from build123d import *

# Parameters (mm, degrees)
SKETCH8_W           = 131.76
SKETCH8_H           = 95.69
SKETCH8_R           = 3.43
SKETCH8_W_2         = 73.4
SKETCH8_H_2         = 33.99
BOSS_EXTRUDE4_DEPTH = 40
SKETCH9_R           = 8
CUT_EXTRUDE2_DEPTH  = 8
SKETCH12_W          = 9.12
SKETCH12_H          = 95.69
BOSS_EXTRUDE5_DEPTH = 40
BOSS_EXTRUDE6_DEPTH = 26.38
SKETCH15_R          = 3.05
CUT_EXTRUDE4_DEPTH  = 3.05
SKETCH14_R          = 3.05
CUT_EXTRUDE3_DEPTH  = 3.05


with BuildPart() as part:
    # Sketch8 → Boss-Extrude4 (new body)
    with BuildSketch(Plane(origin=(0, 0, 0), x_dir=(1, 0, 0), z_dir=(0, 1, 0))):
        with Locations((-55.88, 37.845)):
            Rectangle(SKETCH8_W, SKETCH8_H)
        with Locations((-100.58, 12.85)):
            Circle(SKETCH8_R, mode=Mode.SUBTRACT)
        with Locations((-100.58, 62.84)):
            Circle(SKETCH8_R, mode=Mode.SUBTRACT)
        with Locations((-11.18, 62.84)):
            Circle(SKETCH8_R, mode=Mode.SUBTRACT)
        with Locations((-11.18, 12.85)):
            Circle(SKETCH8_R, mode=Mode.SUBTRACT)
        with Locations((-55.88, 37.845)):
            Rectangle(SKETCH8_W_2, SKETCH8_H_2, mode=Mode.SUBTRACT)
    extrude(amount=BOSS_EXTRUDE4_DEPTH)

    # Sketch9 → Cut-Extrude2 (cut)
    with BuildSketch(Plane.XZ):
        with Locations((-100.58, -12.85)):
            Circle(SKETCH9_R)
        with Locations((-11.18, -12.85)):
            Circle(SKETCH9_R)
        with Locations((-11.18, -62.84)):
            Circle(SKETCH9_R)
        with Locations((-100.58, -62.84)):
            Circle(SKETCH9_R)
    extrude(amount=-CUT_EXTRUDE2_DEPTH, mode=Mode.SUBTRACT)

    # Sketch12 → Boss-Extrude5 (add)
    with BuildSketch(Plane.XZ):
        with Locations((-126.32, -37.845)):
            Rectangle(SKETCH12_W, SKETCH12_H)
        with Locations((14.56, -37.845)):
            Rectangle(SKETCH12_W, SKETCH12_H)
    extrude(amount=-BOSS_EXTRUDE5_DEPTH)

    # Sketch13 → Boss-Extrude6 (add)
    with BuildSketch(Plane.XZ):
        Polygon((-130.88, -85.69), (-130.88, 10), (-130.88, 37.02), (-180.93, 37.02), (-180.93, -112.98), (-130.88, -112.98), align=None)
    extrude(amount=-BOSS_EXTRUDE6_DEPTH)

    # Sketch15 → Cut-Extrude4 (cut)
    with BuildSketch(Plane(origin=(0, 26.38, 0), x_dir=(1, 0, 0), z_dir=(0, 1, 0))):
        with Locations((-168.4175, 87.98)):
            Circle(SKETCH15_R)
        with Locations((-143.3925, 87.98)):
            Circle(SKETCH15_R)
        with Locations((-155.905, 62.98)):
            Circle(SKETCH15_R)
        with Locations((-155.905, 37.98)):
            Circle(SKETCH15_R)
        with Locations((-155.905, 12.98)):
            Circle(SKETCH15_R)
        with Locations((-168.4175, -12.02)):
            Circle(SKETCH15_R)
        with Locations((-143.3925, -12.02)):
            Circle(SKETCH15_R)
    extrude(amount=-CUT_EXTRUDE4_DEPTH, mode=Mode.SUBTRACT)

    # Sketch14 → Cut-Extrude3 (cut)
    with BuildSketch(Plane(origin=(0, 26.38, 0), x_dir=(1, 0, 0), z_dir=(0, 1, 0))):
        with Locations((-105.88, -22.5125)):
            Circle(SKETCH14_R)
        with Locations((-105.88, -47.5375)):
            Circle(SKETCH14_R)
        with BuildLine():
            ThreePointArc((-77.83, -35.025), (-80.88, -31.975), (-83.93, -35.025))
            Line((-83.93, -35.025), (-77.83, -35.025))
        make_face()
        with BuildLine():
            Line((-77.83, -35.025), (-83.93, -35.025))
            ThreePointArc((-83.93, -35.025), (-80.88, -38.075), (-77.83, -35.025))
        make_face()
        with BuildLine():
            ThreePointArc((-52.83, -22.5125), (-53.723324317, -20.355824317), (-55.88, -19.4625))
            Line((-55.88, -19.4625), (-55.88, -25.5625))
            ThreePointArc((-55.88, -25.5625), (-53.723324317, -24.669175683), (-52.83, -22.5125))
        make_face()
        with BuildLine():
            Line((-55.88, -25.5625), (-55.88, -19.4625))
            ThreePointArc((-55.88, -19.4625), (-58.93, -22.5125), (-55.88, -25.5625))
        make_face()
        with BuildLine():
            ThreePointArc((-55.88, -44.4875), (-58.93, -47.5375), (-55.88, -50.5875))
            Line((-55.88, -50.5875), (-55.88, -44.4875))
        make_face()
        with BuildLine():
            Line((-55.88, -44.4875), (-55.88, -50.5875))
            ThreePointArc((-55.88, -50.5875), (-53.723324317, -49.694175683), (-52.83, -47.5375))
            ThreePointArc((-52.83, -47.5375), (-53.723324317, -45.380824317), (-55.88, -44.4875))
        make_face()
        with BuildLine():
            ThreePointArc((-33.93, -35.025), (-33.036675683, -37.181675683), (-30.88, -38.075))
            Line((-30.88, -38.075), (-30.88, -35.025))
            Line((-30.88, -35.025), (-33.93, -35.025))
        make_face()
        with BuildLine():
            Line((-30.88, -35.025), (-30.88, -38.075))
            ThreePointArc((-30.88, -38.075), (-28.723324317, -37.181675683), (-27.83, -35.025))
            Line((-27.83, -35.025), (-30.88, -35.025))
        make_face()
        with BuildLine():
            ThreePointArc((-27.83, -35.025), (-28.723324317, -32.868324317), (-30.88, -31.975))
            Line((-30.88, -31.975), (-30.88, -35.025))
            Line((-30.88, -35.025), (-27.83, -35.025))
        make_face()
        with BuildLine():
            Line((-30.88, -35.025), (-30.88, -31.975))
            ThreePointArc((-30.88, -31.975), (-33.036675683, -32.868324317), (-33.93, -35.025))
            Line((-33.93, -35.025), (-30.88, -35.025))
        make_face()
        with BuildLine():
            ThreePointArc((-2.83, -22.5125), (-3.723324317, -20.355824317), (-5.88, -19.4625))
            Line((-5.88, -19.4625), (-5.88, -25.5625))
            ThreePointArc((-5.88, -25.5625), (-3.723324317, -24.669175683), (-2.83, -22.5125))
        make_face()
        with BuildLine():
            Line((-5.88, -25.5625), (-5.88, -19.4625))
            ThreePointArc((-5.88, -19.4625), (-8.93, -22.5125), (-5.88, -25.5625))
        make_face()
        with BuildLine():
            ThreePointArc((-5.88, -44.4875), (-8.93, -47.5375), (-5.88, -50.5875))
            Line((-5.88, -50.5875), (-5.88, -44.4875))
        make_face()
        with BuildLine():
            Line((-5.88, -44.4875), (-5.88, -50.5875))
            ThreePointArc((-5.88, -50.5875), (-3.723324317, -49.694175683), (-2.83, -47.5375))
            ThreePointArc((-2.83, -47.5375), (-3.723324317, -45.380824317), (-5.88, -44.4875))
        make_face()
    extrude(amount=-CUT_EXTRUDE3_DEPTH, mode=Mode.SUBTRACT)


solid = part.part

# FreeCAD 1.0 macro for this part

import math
import FreeCAD as App
import Part
import Sketcher
Q = App.Units.Quantity


def add_polygon(sketch, points):
    """Adds a closed chain of lines whose ends are joined by coincident constraints."""
    first, n = sketch.GeometryCount, len(points)
    for a, b in zip(points, points[1:] + points[:1]):
        sketch.addGeometry(Part.LineSegment(App.Vector(*a, 0), App.Vector(*b, 0)), False)
    for i in range(n):
        sketch.addConstraint(Sketcher.Constraint("Coincident", first + i, 2, first + (i + 1) % n, 1))

doc = App.newDocument("Part")
body = doc.addObject("PartDesign::Body", "Body")

# Sketch on XZ plane
sketch1 = doc.addObject("Sketcher::SketchObject", "Sketch")
body.addObject(sketch1)
sketch1.AttachmentSupport = (doc.XZ_Plane, [""])
sketch1.MapMode = "FlatFace"
add_polygon(sketch1, [(-121.76, -85.69), (-121.76, 10), (10, 10), (10, -85.69)])  # lines 0-3
sketch1.addGeometry(Part.Circle(App.Vector(-100.58, -12.85, 0), App.Vector(0, 0, 1), 3.43), False)  # 4
sketch1.addGeometry(Part.Circle(App.Vector(-11.18, -12.85, 0), App.Vector(0, 0, 1), 3.43), False)  # 5
add_polygon(sketch1, [(-19.18, -20.85), (-92.58, -20.85), (-92.58, -54.84), (-19.18, -54.84)])  # lines 6-9
sketch1.addGeometry(Part.Circle(App.Vector(-100.58, -62.84, 0), App.Vector(0, 0, 1), 3.43), False)  # 10
sketch1.addGeometry(Part.Circle(App.Vector(-11.18, -62.84, 0), App.Vector(0, 0, 1), 3.43), False)  # 11
sketch1.addConstraint([
    Sketcher.Constraint("Vertical", 0),
    Sketcher.Constraint("Horizontal", 1),
    Sketcher.Constraint("Vertical", 2),
    Sketcher.Constraint("Horizontal", 3),
    Sketcher.Constraint("Horizontal", 6),
    Sketcher.Constraint("Vertical", 7),
    Sketcher.Constraint("Horizontal", 8),
    Sketcher.Constraint("Vertical", 9),
    Sketcher.Constraint("Equal", 4, 5),
    Sketcher.Constraint("Equal", 5, 10),
    Sketcher.Constraint("Equal", 10, 11),
    Sketcher.Constraint("Horizontal", 4, 3, 5, 3),
    Sketcher.Constraint("Horizontal", 10, 3, 11, 3),
    Sketcher.Constraint("Vertical", 4, 3, 10, 3),
    Sketcher.Constraint("Vertical", 5, 3, 11, 3),
    Sketcher.Constraint("Diameter", 4, Q("6.86 mm")),
    Sketcher.Constraint("DistanceX", 6, 2, 6, 1, Q("73.4 mm")),
    Sketcher.Constraint("DistanceY", -1, 1, 0, 2, Q("10 mm")),
    Sketcher.Constraint("DistanceX", -1, 1, 1, 2, Q("10 mm")),
    Sketcher.Constraint("DistanceX", 4, 3, 6, 2, Q("8 mm")),
    Sketcher.Constraint("DistanceY", 6, 2, 4, 3, Q("8 mm")),
    Sketcher.Constraint("DistanceY", 10, 3, 7, 2, Q("8 mm")),
    Sketcher.Constraint("DistanceX", 8, 2, 11, 3, Q("8 mm")),
    Sketcher.Constraint("DistanceX", 1, 1, 1, 2, Q("131.76 mm")),
    Sketcher.Constraint("DistanceY", 0, 1, 0, 2, Q("95.69 mm")),
    Sketcher.Constraint("DistanceY", 7, 2, 7, 1, Q("33.99 mm")),
    Sketcher.Constraint("DistanceX", 4, 3, -1, 1, Q("100.58 mm")),
    Sketcher.Constraint("DistanceY", 4, 3, -1, 1, Q("12.85 mm")),
])
pad1 = doc.addObject("PartDesign::Pad", "Pad")
body.addObject(pad1)
pad1.Profile = sketch1
pad1.Length = 40
pad1.Reversed = True

# Sketch on XZ plane
sketch2 = doc.addObject("Sketcher::SketchObject", "Sketch001")
body.addObject(sketch2)
sketch2.AttachmentSupport = (doc.XZ_Plane, [""])
sketch2.MapMode = "FlatFace"
sketch2.addGeometry([
    Part.Circle(App.Vector(-100.58, -12.85, 0), App.Vector(0, 0, 1), 8),
    Part.Circle(App.Vector(-11.18, -12.85, 0), App.Vector(0, 0, 1), 8),
    Part.Circle(App.Vector(-11.18, -62.84, 0), App.Vector(0, 0, 1), 8),
    Part.Circle(App.Vector(-100.58, -62.84, 0), App.Vector(0, 0, 1), 8),
], False)
sketch2.addConstraint([
    Sketcher.Constraint("Equal", 0, 1),
    Sketcher.Constraint("Equal", 1, 2),
    Sketcher.Constraint("Equal", 2, 3),
    Sketcher.Constraint("Horizontal", 0, 3, 1, 3),
    Sketcher.Constraint("Horizontal", 2, 3, 3, 3),
    Sketcher.Constraint("Vertical", 1, 3, 2, 3),
    Sketcher.Constraint("Vertical", 0, 3, 3, 3),
    Sketcher.Constraint("Diameter", 0, Q("16 mm")),
    Sketcher.Constraint("DistanceX", 0, 3, 1, 3, Q("89.4 mm")),
    Sketcher.Constraint("DistanceX", 0, 3, -1, 1, Q("100.58 mm")),
    Sketcher.Constraint("DistanceY", 0, 3, -1, 1, Q("12.85 mm")),
    Sketcher.Constraint("DistanceY", 2, 3, -1, 1, Q("62.84 mm")),
])
pocket1 = doc.addObject("PartDesign::Pocket", "Pocket")
body.addObject(pocket1)
pocket1.Profile = sketch2
pocket1.Length = 8

# Sketch on XZ plane
sketch3 = doc.addObject("Sketcher::SketchObject", "Sketch002")
body.addObject(sketch3)
sketch3.AttachmentSupport = (doc.XZ_Plane, [""])
sketch3.MapMode = "FlatFace"
add_polygon(sketch3, [(-130.88, 10), (-130.88, -85.69), (-121.76, -85.69), (-121.76, 10)])  # lines 0-3
add_polygon(sketch3, [(10, 10), (10, -85.69), (19.12, -85.69), (19.12, 10)])  # lines 4-7
sketch3.addConstraint([
    Sketcher.Constraint("Vertical", 0),
    Sketcher.Constraint("Horizontal", 1),
    Sketcher.Constraint("Vertical", 2),
    Sketcher.Constraint("Horizontal", 3),
    Sketcher.Constraint("Vertical", 4),
    Sketcher.Constraint("Horizontal", 5),
    Sketcher.Constraint("Vertical", 6),
    Sketcher.Constraint("Horizontal", 7),
    Sketcher.Constraint("Horizontal", 1, 2, 4, 2),
    Sketcher.Constraint("Horizontal", 3, 2, 6, 2),
    Sketcher.Constraint("Equal", 3, 5),
    Sketcher.Constraint("DistanceY", -1, 1, 2, 2, Q("10 mm")),
    Sketcher.Constraint("DistanceX", -1, 1, 4, 2, Q("10 mm")),
    Sketcher.Constraint("DistanceX", 0, 2, 5, 2, Q("150 mm")),
    Sketcher.Constraint("DistanceX", 1, 1, 1, 2, Q("9.12 mm")),
    Sketcher.Constraint("DistanceY", 0, 2, 0, 1, Q("95.69 mm")),
])
pad2 = doc.addObject("PartDesign::Pad", "Pad001")
body.addObject(pad2)
pad2.Profile = sketch3
pad2.Length = 40
pad2.Reversed = True

# Sketch on XZ plane
sketch4 = doc.addObject("Sketcher::SketchObject", "Sketch003")
body.addObject(sketch4)
sketch4.AttachmentSupport = (doc.XZ_Plane, [""])
sketch4.MapMode = "FlatFace"
add_polygon(sketch4, [(-130.88, 37.02), (-180.93, 37.02), (-180.93, -112.98), (-130.88, -112.98)])  # lines 0-3
sketch4.addConstraint([
    Sketcher.Constraint("Horizontal", 0),
    Sketcher.Constraint("Vertical", 1),
    Sketcher.Constraint("Horizontal", 2),
    Sketcher.Constraint("Vertical", 3),
    Sketcher.Constraint("DistanceY", 1, 2, 1, 1, Q("150 mm")),
    Sketcher.Constraint("DistanceX", 0, 2, 0, 1, Q("50.05 mm")),
    Sketcher.Constraint("DistanceX", 0, 2, -1, 1, Q("180.93 mm")),
    Sketcher.Constraint("DistanceY", -1, 1, 0, 2, Q("37.02 mm")),
])
pad3 = doc.addObject("PartDesign::Pad", "Pad002")
body.addObject(pad3)
pad3.Profile = sketch4
pad3.Length = 26.38
pad3.Reversed = True

# Sketch on XZ plane
sketch5 = doc.addObject("Sketcher::SketchObject", "Sketch004")
body.addObject(sketch5)
sketch5.AttachmentSupport = (doc.XZ_Plane, [""])
sketch5.MapMode = "FlatFace"
sketch5.AttachmentOffset = App.Placement(App.Vector(0, 0, -26.38), App.Rotation())
sketch5.addGeometry([
    Part.Circle(App.Vector(-168.4175, -87.98, 0), App.Vector(0, 0, 1), 3.05),  # 0
    Part.Circle(App.Vector(-143.3925, -87.98, 0), App.Vector(0, 0, 1), 3.05),  # 1
    Part.Circle(App.Vector(-155.905, -62.98, 0), App.Vector(0, 0, 1), 3.05),  # 2
    Part.Circle(App.Vector(-155.905, -37.98, 0), App.Vector(0, 0, 1), 3.05),  # 3
    Part.Circle(App.Vector(-155.905, -12.98, 0), App.Vector(0, 0, 1), 3.05),  # 4
    Part.Circle(App.Vector(-168.4175, 12.02, 0), App.Vector(0, 0, 1), 3.05),  # 5
    Part.Circle(App.Vector(-143.3925, 12.02, 0), App.Vector(0, 0, 1), 3.05),  # 6
], False)
sketch5.addConstraint([
    Sketcher.Constraint("Equal", 0, 1),
    Sketcher.Constraint("Equal", 1, 2),
    Sketcher.Constraint("Equal", 2, 3),
    Sketcher.Constraint("Equal", 3, 4),
    Sketcher.Constraint("Equal", 4, 5),
    Sketcher.Constraint("Equal", 5, 6),
    Sketcher.Constraint("Horizontal", 0, 3, 1, 3),
    Sketcher.Constraint("Horizontal", 5, 3, 6, 3),
    Sketcher.Constraint("Vertical", 2, 3, 3, 3),
    Sketcher.Constraint("Vertical", 3, 3, 4, 3),
    Sketcher.Constraint("Vertical", 0, 3, 5, 3),
    Sketcher.Constraint("Vertical", 1, 3, 6, 3),
    Sketcher.Constraint("Diameter", 0, Q("6.1 mm")),
    Sketcher.Constraint("DistanceY", 0, 3, 2, 3, Q("25 mm")),
    Sketcher.Constraint("DistanceY", 2, 3, 3, 3, Q("25 mm")),
    Sketcher.Constraint("DistanceY", 3, 3, 4, 3, Q("25 mm")),
    Sketcher.Constraint("DistanceY", 4, 3, 5, 3, Q("25 mm")),
    Sketcher.Constraint("DistanceY", 0, 3, -1, 1, Q("87.98 mm")),
    Sketcher.Constraint("DistanceX", 2, 3, -1, 1, Q("155.905 mm")),
    Sketcher.Constraint("DistanceX", 0, 3, 1, 3, Q("25.025 mm")),
    Sketcher.Constraint("DistanceX", 0, 3, -1, 1, Q("168.4175 mm")),
])
pocket2 = doc.addObject("PartDesign::Pocket", "Pocket001")
body.addObject(pocket2)
pocket2.Profile = sketch5
pocket2.Length = 3.05
pocket2.Reversed = True

# Sketch on XZ plane
sketch6 = doc.addObject("Sketcher::SketchObject", "Sketch005")
body.addObject(sketch6)
sketch6.AttachmentSupport = (doc.XZ_Plane, [""])
sketch6.MapMode = "FlatFace"
sketch6.AttachmentOffset = App.Placement(App.Vector(0, 0, -26.38), App.Rotation())
sketch6.addGeometry([
    Part.Circle(App.Vector(-105.88, 22.5125, 0), App.Vector(0, 0, 1), 3.05),  # 0
    Part.Circle(App.Vector(-105.88, 47.5375, 0), App.Vector(0, 0, 1), 3.05),  # 1
    Part.Circle(App.Vector(-80.88, 35.025, 0), App.Vector(0, 0, 1), 3.05),  # 2
    Part.ArcOfCircle(Part.Circle(App.Vector(-55.88, 22.5125, 0), App.Vector(0, 0, 1), 3.05), math.radians(-90), math.radians(0)),  # 3
    Part.ArcOfCircle(Part.Circle(App.Vector(-55.88, 22.5125, 0), App.Vector(0, 0, 1), 3.05), math.radians(90), math.radians(270)),  # 4
    Part.ArcOfCircle(Part.Circle(App.Vector(-55.88, 22.5125, 0), App.Vector(0, 0, 1), 3.05), math.radians(0), math.radians(90)),  # 5
    Part.ArcOfCircle(Part.Circle(App.Vector(-55.88, 47.5375, 0), App.Vector(0, 0, 1), 3.05), math.radians(90), math.radians(270)),  # 6
    Part.ArcOfCircle(Part.Circle(App.Vector(-55.88, 47.5375, 0), App.Vector(0, 0, 1), 3.05), math.radians(0), math.radians(90)),  # 7
    Part.ArcOfCircle(Part.Circle(App.Vector(-55.88, 47.5375, 0), App.Vector(0, 0, 1), 3.05), math.radians(-90), math.radians(0)),  # 8
    Part.ArcOfCircle(Part.Circle(App.Vector(-30.88, 35.025, 0), App.Vector(0, 0, 1), 3.05), math.radians(180), math.radians(270)),  # 9
    Part.ArcOfCircle(Part.Circle(App.Vector(-30.88, 35.025, 0), App.Vector(0, 0, 1), 3.05), math.radians(90), math.radians(180)),  # 10
    Part.ArcOfCircle(Part.Circle(App.Vector(-30.88, 35.025, 0), App.Vector(0, 0, 1), 3.05), math.radians(0), math.radians(90)),  # 11
    Part.ArcOfCircle(Part.Circle(App.Vector(-30.88, 35.025, 0), App.Vector(0, 0, 1), 3.05), math.radians(-90), math.radians(0)),  # 12
    Part.ArcOfCircle(Part.Circle(App.Vector(-5.88, 22.5125, 0), App.Vector(0, 0, 1), 3.05), math.radians(-90), math.radians(0)),  # 13
    Part.ArcOfCircle(Part.Circle(App.Vector(-5.88, 22.5125, 0), App.Vector(0, 0, 1), 3.05), math.radians(90), math.radians(270)),  # 14
    Part.ArcOfCircle(Part.Circle(App.Vector(-5.88, 22.5125, 0), App.Vector(0, 0, 1), 3.05), math.radians(0), math.radians(90)),  # 15
    Part.ArcOfCircle(Part.Circle(App.Vector(-5.88, 47.5375, 0), App.Vector(0, 0, 1), 3.05), math.radians(90), math.radians(270)),  # 16
    Part.ArcOfCircle(Part.Circle(App.Vector(-5.88, 47.5375, 0), App.Vector(0, 0, 1), 3.05), math.radians(0), math.radians(90)),  # 17
    Part.ArcOfCircle(Part.Circle(App.Vector(-5.88, 47.5375, 0), App.Vector(0, 0, 1), 3.05), math.radians(-90), math.radians(0)),  # 18
], False)
sketch6.addConstraint([
    Sketcher.Constraint("Tangent", 3, 1, 4, 2),
    Sketcher.Constraint("Tangent", 4, 1, 5, 2),
    Sketcher.Constraint("Tangent", 5, 1, 3, 2),
    Sketcher.Constraint("Tangent", 6, 1, 7, 2),
    Sketcher.Constraint("Tangent", 7, 1, 8, 2),
    Sketcher.Constraint("Tangent", 8, 1, 6, 2),
    Sketcher.Constraint("Tangent", 9, 1, 10, 2),
    Sketcher.Constraint("Tangent", 10, 1, 11, 2),
    Sketcher.Constraint("Tangent", 11, 1, 12, 2),
    Sketcher.Constraint("Tangent", 12, 1, 9, 2),
    Sketcher.Constraint("Tangent", 13, 1, 14, 2),
    Sketcher.Constraint("Tangent", 14, 1, 15, 2),
    Sketcher.Constraint("Tangent", 15, 1, 13, 2),
    Sketcher.Constraint("Tangent", 16, 1, 17, 2),
    Sketcher.Constraint("Tangent", 17, 1, 18, 2),
    Sketcher.Constraint("Tangent", 18, 1, 16, 2),
    Sketcher.Constraint("Equal", 0, 1),
    Sketcher.Constraint("Equal", 1, 2),
    Sketcher.Constraint("Equal", 2, 3),
    Sketcher.Constraint("Equal", 5, 6),
    Sketcher.Constraint("Equal", 8, 9),
    Sketcher.Constraint("Equal", 9, 10),
    Sketcher.Constraint("Equal", 12, 13),
    Sketcher.Constraint("Equal", 15, 16),
    Sketcher.Constraint("Horizontal", 0, 3, 3, 3),
    Sketcher.Constraint("Horizontal", 1, 3, 6, 3),
    Sketcher.Constraint("Horizontal", 2, 3, 9, 3),
    Sketcher.Constraint("Horizontal", 5, 3, 13, 3),
    Sketcher.Constraint("Horizontal", 8, 3, 16, 3),
    Sketcher.Constraint("Horizontal", 15, 3, 5, 1),
    Sketcher.Constraint("Horizontal", 18, 3, 7, 1),
    Sketcher.Constraint("Horizontal", 12, 3, 9, 1),
    Sketcher.Constraint("Horizontal", 9, 1, 11, 1),
    Sketcher.Constraint("Horizontal", 5, 1, 15, 1),
    Sketcher.Constraint("Horizontal", 7, 1, 17, 1),
    Sketcher.Constraint("Vertical", 0, 3, 1, 3),
    Sketcher.Constraint("Vertical", 5, 3, 6, 3),
    Sketcher.Constraint("Vertical", 15, 3, 16, 3),
    Sketcher.Constraint("Vertical", 8, 3, 3, 1),
    Sketcher.Constraint("Vertical", 3, 1, 4, 1),
    Sketcher.Constraint("Vertical", 4, 1, 6, 1),
    Sketcher.Constraint("Vertical", 6, 1, 8, 1),
    Sketcher.Constraint("Vertical", 12, 3, 10, 1),
    Sketcher.Constraint("Vertical", 10, 1, 12, 1),
    Sketcher.Constraint("Vertical", 18, 3, 13, 1),
    Sketcher.Constraint("Vertical", 13, 1, 14, 1),
    Sketcher.Constraint("Vertical", 14, 1, 16, 1),
    Sketcher.Constraint("Vertical", 16, 1, 18, 1),
    Sketcher.Constraint("Diameter", 0, Q("6.1 mm")),
    Sketcher.Constraint("DistanceX", 0, 3, 2, 3, Q("25 mm")),
    Sketcher.Constraint("DistanceX", 2, 3, 3, 3, Q("25 mm")),
    Sketcher.Constraint("DistanceX", 5, 3, 9, 3, Q("25 mm")),
    Sketcher.Constraint("DistanceX", 12, 3, 13, 3, Q("25 mm")),
    Sketcher.Constraint("DistanceX", 0, 3, -1, 1, Q("105.88 mm")),
    Sketcher.Constraint("DistanceY", -1, 1, 2, 3, Q("35.025 mm")),
    Sketcher.Constraint("DistanceY", 0, 3, 1, 3, Q("25.025 mm")),
    Sketcher.Constraint("DistanceY", -1, 1, 0, 3, Q("22.5125 mm")),
])
pocket3 = doc.addObject("PartDesign::Pocket", "Pocket002")
body.addObject(pocket3)
pocket3.Profile = sketch6
pocket3.Length = 3.05
pocket3.Reversed = True

doc.recompute()
